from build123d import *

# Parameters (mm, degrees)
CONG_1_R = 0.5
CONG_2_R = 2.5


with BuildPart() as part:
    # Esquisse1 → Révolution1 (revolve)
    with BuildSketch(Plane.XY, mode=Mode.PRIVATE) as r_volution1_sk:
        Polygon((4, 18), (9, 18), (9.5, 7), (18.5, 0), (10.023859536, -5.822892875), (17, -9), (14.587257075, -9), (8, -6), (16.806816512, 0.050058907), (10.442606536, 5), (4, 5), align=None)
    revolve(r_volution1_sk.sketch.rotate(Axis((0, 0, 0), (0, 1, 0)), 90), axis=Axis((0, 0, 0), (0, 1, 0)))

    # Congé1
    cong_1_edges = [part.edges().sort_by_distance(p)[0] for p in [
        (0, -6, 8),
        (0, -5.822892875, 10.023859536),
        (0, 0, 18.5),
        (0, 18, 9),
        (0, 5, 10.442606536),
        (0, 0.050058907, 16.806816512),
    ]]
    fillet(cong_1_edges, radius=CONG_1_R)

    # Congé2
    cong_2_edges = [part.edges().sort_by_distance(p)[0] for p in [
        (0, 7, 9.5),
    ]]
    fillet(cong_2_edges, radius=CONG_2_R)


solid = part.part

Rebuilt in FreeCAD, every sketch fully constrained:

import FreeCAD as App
import Part
import Sketcher

V = App.Vector
Q = App.Units.Quantity


def edges_at(feature, points):
    """Names of the edges that pass closest to the given points."""
    edges = feature.Shape.Edges
    near = lambda p: min(range(len(edges)), key=lambda i: edges[i].distToShape(Part.Vertex(*p))[0])
    return sorted({f"Edge{near(p) + 1}" for p in points})


def add_polygon(sketch, points):
    """Adds a closed chain of lines whose ends are joined by coincident constraints."""
    first, n = sketch.GeometryCount, len(points)
    for a, b in zip(points, points[1:] + points[:1]):
        sketch.addGeometry(Part.LineSegment(App.Vector(*a, 0), App.Vector(*b, 0)), False)
    for i in range(n):
        sketch.addConstraint(Sketcher.Constraint("Coincident", first + i, 2, first + (i + 1) % n, 1))

doc = App.newDocument("Part")
body = doc.addObject("PartDesign::Body", "Body")

# Sketch on XY plane
sketch1 = body.newObject("Sketcher::SketchObject", "Sketch")
sketch1.AttachmentSupport = (doc.getObject("XY_Plane"), [""])
sketch1.MapMode = "FlatFace"
add_polygon(sketch1, [(9, 18), (4, 18), (4, 5), (10.4, 5), (16.8, 0.1), (8, -6), (14.6, -9), (17, -9), (10, -5.8), (18.5, 0), (9.5, 7)])  # lines 0-10
sketch1.addConstraint(Sketcher.Constraint("Horizontal", 0))
sketch1.addConstraint(Sketcher.Constraint("Vertical", 1))
sketch1.addConstraint(Sketcher.Constraint("Horizontal", 2))
sketch1.addConstraint(Sketcher.Constraint("Horizontal", 6))
sketch1.addConstraint(Sketcher.Constraint("PointOnObject", 8, 2, -1))
sketch1.addConstraint(Sketcher.Constraint("Parallel", 5, 7))
sketch1.addConstraint(Sketcher.Constraint("Parallel", 4, 8))
sketch1.addConstraint(Sketcher.Constraint("Parallel", 3, 9))
sketch1.addConstraint(Sketcher.Constraint("DistanceX", 0, 2, 0, 1, Q("5 mm")))
sketch1.addConstraint(Sketcher.Constraint("DistanceY", 1, 2, 1, 1, Q("13 mm")))
sketch1.addConstraint(Sketcher.Constraint("DistanceX", -1, 1, 0, 2, Q("4 mm")))
sketch1.addConstraint(Sketcher.Constraint("DistanceY", -1, 1, 0, 2, Q("18 mm")))
sketch1.addConstraint(Sketcher.Constraint("DistanceX", -1, 1, 4, 2, Q("8 mm")))
sketch1.addConstraint(Sketcher.Constraint("DistanceY", 4, 2, -1, 1, Q("6 mm")))
sketch1.addConstraint(Sketcher.Constraint("DistanceY", 5, 2, -1, 1, Q("9 mm")))
sketch1.addConstraint(Sketcher.Constraint("DistanceX", -1, 1, 6, 2, Q("17 mm")))
sketch1.addConstraint(Sketcher.Constraint("DistanceY", -1, 1, 9, 2, Q("7 mm")))
sketch1.addConstraint(Sketcher.Constraint("DistanceX", 9, 2, 8, 2, Q("9 mm")))
sketch1.addConstraint(Sketcher.Constraint("DistanceX", -1, 1, 8, 2, Q("18.5 mm")))
sketch1.addConstraint(Sketcher.Constraint("Distance", 4, Q("10.684719 mm")))
sketch1.addConstraint(Sketcher.Constraint("Distance", 5, Q("7.238229 mm")))
sketch1.addConstraint(Sketcher.Constraint("DistanceX", 2, 1, 2, 2, Q("6.442607 mm")))
revolution = body.newObject("PartDesign::Revolution", "Revolution")
revolution.Profile = sketch1
revolution.ReferenceAxis = (sketch1, ["V_Axis"])
revolution.Angle = 360
doc.recompute()

fillet = body.newObject("PartDesign::Fillet", "Fillet")
fillet.Base = (revolution, edges_at(revolution, [
    (0, -6, 8),
    (0, -5.823, 10.024),
    (0, 0, 18.5),
    (0, 18, 9),
    (0, 5, 10.443),
    (0, 0.05, 16.807),
]))
fillet.Radius = 0.5
doc.recompute()

fillet2 = body.newObject("PartDesign::Fillet", "Fillet001")
fillet2.Base = (fillet, edges_at(fillet, [(0, 7, 9.5)]))
fillet2.Radius = 2.5

doc.recompute()
